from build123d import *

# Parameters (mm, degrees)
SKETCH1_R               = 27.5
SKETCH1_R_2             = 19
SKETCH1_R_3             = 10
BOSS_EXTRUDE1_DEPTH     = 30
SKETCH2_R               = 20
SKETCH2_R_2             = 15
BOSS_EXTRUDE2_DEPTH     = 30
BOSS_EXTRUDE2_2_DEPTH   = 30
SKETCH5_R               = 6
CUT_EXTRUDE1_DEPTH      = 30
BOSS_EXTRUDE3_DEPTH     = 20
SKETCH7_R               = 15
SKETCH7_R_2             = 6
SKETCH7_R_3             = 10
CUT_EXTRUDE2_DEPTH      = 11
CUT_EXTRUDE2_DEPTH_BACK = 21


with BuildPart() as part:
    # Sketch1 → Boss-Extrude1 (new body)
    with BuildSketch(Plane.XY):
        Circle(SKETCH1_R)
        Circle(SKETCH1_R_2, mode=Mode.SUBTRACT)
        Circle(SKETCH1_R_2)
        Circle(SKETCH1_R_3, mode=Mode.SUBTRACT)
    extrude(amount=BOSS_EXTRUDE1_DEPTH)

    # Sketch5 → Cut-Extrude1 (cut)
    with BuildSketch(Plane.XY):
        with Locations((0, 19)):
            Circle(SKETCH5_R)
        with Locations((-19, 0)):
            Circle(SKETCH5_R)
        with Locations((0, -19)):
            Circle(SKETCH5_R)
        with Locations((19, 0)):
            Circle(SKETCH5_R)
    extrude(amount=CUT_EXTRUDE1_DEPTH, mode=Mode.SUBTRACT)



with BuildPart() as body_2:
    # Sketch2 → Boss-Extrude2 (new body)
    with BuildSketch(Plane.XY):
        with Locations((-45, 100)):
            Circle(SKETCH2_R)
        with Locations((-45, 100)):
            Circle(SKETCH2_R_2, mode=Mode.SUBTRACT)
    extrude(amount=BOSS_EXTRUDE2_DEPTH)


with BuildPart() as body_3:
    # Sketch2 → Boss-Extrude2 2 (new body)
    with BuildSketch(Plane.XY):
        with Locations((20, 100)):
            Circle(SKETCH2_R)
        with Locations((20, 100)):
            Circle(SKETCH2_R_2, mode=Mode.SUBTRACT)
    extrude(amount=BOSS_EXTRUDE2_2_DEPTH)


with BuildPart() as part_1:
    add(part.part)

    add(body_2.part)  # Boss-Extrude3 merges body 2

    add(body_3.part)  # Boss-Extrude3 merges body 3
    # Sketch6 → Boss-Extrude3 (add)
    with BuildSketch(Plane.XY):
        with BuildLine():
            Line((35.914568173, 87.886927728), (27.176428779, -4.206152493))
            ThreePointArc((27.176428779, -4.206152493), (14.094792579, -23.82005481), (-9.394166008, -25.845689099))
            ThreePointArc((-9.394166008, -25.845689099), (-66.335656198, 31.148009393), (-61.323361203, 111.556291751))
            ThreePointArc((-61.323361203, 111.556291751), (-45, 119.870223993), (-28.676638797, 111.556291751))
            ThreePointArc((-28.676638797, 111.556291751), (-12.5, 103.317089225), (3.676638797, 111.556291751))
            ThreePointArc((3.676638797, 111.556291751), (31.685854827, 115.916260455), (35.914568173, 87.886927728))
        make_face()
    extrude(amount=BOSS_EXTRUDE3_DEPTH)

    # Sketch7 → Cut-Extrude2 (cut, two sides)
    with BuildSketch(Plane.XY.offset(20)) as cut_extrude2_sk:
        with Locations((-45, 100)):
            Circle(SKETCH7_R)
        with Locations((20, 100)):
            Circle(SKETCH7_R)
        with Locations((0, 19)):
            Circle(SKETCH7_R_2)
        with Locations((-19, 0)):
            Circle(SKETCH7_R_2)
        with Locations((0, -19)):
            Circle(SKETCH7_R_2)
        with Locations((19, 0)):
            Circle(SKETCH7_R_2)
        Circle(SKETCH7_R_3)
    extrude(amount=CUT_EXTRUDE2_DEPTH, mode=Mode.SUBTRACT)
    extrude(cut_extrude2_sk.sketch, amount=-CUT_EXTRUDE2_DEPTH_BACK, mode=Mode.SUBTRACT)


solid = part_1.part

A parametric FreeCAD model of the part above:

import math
import FreeCAD as App
import Part
import Sketcher

doc = App.newDocument("Part")
params = doc.addObject("Spreadsheet::Sheet", "Params")
for row, (alias, value) in enumerate([
    ("sketch1_diameter", "55 mm"),
    ("sketch1_diameter2", "20 mm"),
    ("pad1_length", "30 mm"),
    ("sketch2_diameter", "12 mm"),
    ("pocket1_length", "30 mm"),
    ("sketch3_diameter", "40 mm"),
    ("sketch3_diameter2", "30 mm"),
    ("pad2_length", "30 mm"),
    ("sketch4_diameter", "40 mm"),
    ("sketch4_diameter2", "30 mm"),
    ("pad3_length", "30 mm"),
    ("sketch5_radius", "20 mm"),
    ("sketch5_radius2", "98 mm"),
    ("pad4_length", "20 mm"),
    ("sketch6_diameter", "30 mm"),
    ("sketch6_diameter2", "12 mm"),
    ("sketch6_diameter3", "20 mm"),
], start=1):
    params.set(f"A{row}", alias)
    params.set(f"B{row}", "=" + value)
    params.setAlias(f"B{row}", alias)

body = doc.addObject("PartDesign::Body", "Body")

# Sketch on XY plane
sketch1 = body.newObject("Sketcher::SketchObject", "Sketch")
sketch1.AttachmentSupport = (doc.getObject("XY_Plane"), [""])
sketch1.MapMode = "FlatFace"
sketch1.addGeometry(Part.Circle(App.Vector(0, 0, 0), App.Vector(0, 0, 1), 28), False)
sketch1.addGeometry(Part.Circle(App.Vector(0, 0, 0), App.Vector(0, 0, 1), 10), False)
sketch1.addConstraint(Sketcher.Constraint("Coincident", 0, 3, -1, 1))
sketch1.addConstraint(Sketcher.Constraint("Coincident", 1, 3, -1, 1))
sketch1.addConstraint(Sketcher.Constraint("Diameter", 0, 55.0))
sketch1.addConstraint(Sketcher.Constraint("Diameter", 1, 20.0))
sketch1.setExpression("Constraints[2]", "Params.sketch1_diameter")
sketch1.setExpression("Constraints[3]", "Params.sketch1_diameter2")
pad1 = body.newObject("PartDesign::Pad", "Pad")
pad1.Profile = sketch1
pad1.setExpression("Length", "Params.pad1_length")

# Sketch on XY plane
sketch2 = body.newObject("Sketcher::SketchObject", "Sketch001")
sketch2.AttachmentSupport = (doc.getObject("XY_Plane"), [""])
sketch2.MapMode = "FlatFace"
sketch2.addGeometry(Part.Circle(App.Vector(0, 19, 0), App.Vector(0, 0, 1), 6), False)
sketch2.addGeometry(Part.Circle(App.Vector(-19, 0, 0), App.Vector(0, 0, 1), 6), False)
sketch2.addGeometry(Part.Circle(App.Vector(0, -19, 0), App.Vector(0, 0, 1), 6), False)
sketch2.addGeometry(Part.Circle(App.Vector(19, 0, 0), App.Vector(0, 0, 1), 6), False)
sketch2.addConstraint(Sketcher.Constraint("Equal", 0, 1))
sketch2.addConstraint(Sketcher.Constraint("Equal", 1, 2))
sketch2.addConstraint(Sketcher.Constraint("Equal", 2, 3))
sketch2.addConstraint(Sketcher.Constraint("Symmetric", 0, 3, 2, 3, -1, 1))
sketch2.addConstraint(Sketcher.Constraint("Symmetric", 1, 3, 3, 3, -1, 1))
sketch2.addConstraint(Sketcher.Constraint("PointOnObject", 0, 3, -2))
sketch2.addConstraint(Sketcher.Constraint("PointOnObject", 1, 3, -1))
sketch2.addConstraint(Sketcher.Constraint("Diameter", 0, 12.0))
sketch2.addConstraint(Sketcher.Constraint("DistanceY", -1, 1, 0, 3, 19.0))
sketch2.addConstraint(Sketcher.Constraint("DistanceX", 1, 3, -1, 1, 19.0))
sketch2.setExpression("Constraints[7]", "Params.sketch2_diameter")
pocket1 = body.newObject("PartDesign::Pocket", "Pocket")
pocket1.Profile = sketch2
pocket1.setExpression("Length", "Params.pocket1_length")
pocket1.Reversed = True
body2 = doc.addObject("PartDesign::Body", "Body001")

# Sketch on XY plane
sketch3 = body2.newObject("Sketcher::SketchObject", "Sketch002")
sketch3.AttachmentSupport = (doc.getObject("XY_Plane001"), [""])
sketch3.MapMode = "FlatFace"
sketch3.addGeometry(Part.Circle(App.Vector(-45, 100, 0), App.Vector(0, 0, 1), 20), False)
sketch3.addGeometry(Part.Circle(App.Vector(-45, 100, 0), App.Vector(0, 0, 1), 15), False)
sketch3.addConstraint(Sketcher.Constraint("Coincident", 1, 3, 0, 3))
sketch3.addConstraint(Sketcher.Constraint("Diameter", 0, 40.0))
sketch3.addConstraint(Sketcher.Constraint("Diameter", 1, 30.0))
sketch3.addConstraint(Sketcher.Constraint("DistanceX", 0, 3, -1, 1, 45.0))
sketch3.addConstraint(Sketcher.Constraint("DistanceY", -1, 1, 0, 3, 100.0))
sketch3.setExpression("Constraints[1]", "Params.sketch3_diameter")
sketch3.setExpression("Constraints[2]", "Params.sketch3_diameter2")
pad2 = body2.newObject("PartDesign::Pad", "Pad001")
pad2.Profile = sketch3
pad2.setExpression("Length", "Params.pad2_length")
body3 = doc.addObject("PartDesign::Body", "Body002")

# Sketch on XY plane
sketch4 = body3.newObject("Sketcher::SketchObject", "Sketch003")
sketch4.AttachmentSupport = (doc.getObject("XY_Plane002"), [""])
sketch4.MapMode = "FlatFace"
sketch4.addGeometry(Part.Circle(App.Vector(20, 100, 0), App.Vector(0, 0, 1), 20), False)
sketch4.addGeometry(Part.Circle(App.Vector(20, 100, 0), App.Vector(0, 0, 1), 15), False)
sketch4.addConstraint(Sketcher.Constraint("Coincident", 1, 3, 0, 3))
sketch4.addConstraint(Sketcher.Constraint("Diameter", 0, 40.0))
sketch4.addConstraint(Sketcher.Constraint("Diameter", 1, 30.0))
sketch4.addConstraint(Sketcher.Constraint("DistanceX", -1, 1, 0, 3, 20.0))
sketch4.addConstraint(Sketcher.Constraint("DistanceY", -1, 1, 0, 3, 100.0))
sketch4.setExpression("Constraints[1]", "Params.sketch4_diameter")
sketch4.setExpression("Constraints[2]", "Params.sketch4_diameter2")
pad3 = body3.newObject("PartDesign::Pad", "Pad002")
pad3.Profile = sketch4
pad3.setExpression("Length", "Params.pad3_length")
body.AllowCompound = True
doc.recompute()

boolean = body.newObject("PartDesign::Boolean", "Boolean")
boolean.Type = "Fuse"
boolean.addObjects([body2])
doc.recompute()

boolean2 = body.newObject("PartDesign::Boolean", "Boolean001")
boolean2.Type = "Fuse"
boolean2.addObjects([body3])

# Sketch on XY plane
sketch5 = body.newObject("Sketcher::SketchObject", "Sketch004")
sketch5.AttachmentSupport = (doc.getObject("XY_Plane"), [""])
sketch5.MapMode = "FlatFace"
sketch5.addGeometry(Part.LineSegment(App.Vector(27, -4, 0), App.Vector(36, 88, 0)), False)
sketch5.addGeometry(Part.ArcOfCircle(Part.Circle(App.Vector(20, 100, 0), App.Vector(0, 0, 1), 20), math.radians(-37), math.radians(144)), False)
sketch5.addGeometry(Part.ArcOfCircle(Part.Circle(App.Vector(-12, 123, 0), App.Vector(0, 0, 1), 20), math.radians(-144), math.radians(-36)), False)
sketch5.addGeometry(Part.ArcOfCircle(Part.Circle(App.Vector(-45, 100, 0), App.Vector(0, 0, 1), 20), math.radians(36), math.radians(144)), False)
sketch5.addGeometry(Part.ArcOfCircle(Part.Circle(App.Vector(25, 66, 0), App.Vector(0, 0, 1), 98), math.radians(152), math.radians(249)), False)
sketch5.addGeometry(Part.ArcOfCircle(Part.Circle(App.Vector(0, 0, 0), App.Vector(0, 0, 1), 27), math.radians(-111), math.radians(-8)), False)
sketch5.addConstraint(Sketcher.Constraint("Coincident", 0, 2, 1, 1))
sketch5.addConstraint(Sketcher.Constraint("Tangent", 1, 2, 2, 2))
sketch5.addConstraint(Sketcher.Constraint("Tangent", 2, 1, 3, 1))
sketch5.addConstraint(Sketcher.Constraint("Coincident", 3, 2, 4, 1))
sketch5.addConstraint(Sketcher.Constraint("Tangent", 4, 2, 5, 1))
sketch5.addConstraint(Sketcher.Constraint("Coincident", 5, 2, 0, 1))
sketch5.addConstraint(Sketcher.Constraint("Horizontal", 1, 2, 2, 1))
sketch5.addConstraint(Sketcher.Constraint("Horizontal", 2, 1, 3, 2))
sketch5.addConstraint(Sketcher.Constraint("Radius", 2, 20.0))
sketch5.addConstraint(Sketcher.Constraint("Radius", 4, 98.0))
sketch5.addConstraint(Sketcher.Constraint("DistanceX", 3, 3, -1, 1, 45.0))
sketch5.addConstraint(Sketcher.Constraint("DistanceX", 3, 2, 1, 2, 65.0))
sketch5.addConstraint(Sketcher.Constraint("Radius", 3, 20.1814))
sketch5.addConstraint(Sketcher.Constraint("Radius", 1, 19.997237))
sketch5.addConstraint(Sketcher.Constraint("Radius", 5, 27.197827))
sketch5.addConstraint(Sketcher.Constraint("DistanceX", 5, 3, 4, 3, 25.091402))
sketch5.addConstraint(Sketcher.Constraint("DistanceY", -1, 1, 1, 3, 99.797119))
sketch5.addConstraint(Sketcher.Constraint("DistanceY", -1, 1, 4, 3, 65.793981))
sketch5.addConstraint(Sketcher.Constraint("DistanceX", -1, 1, 0, 2, 35.914568))
sketch5.addConstraint(Sketcher.Constraint("DistanceX", -1, 1, 5, 2, 27.176429))
sketch5.setExpression("Constraints[8]", "Params.sketch5_radius")
sketch5.setExpression("Constraints[9]", "Params.sketch5_radius2")
pad4 = body.newObject("PartDesign::Pad", "Pad003")
pad4.Profile = sketch5
pad4.setExpression("Length", "Params.pad4_length")

# Sketch on XY plane
sketch6 = body.newObject("Sketcher::SketchObject", "Sketch005")
sketch6.AttachmentSupport = (doc.getObject("XY_Plane"), [""])
sketch6.MapMode = "FlatFace"
sketch6.AttachmentOffset = App.Placement(App.Vector(0, 0, 20), App.Rotation())
sketch6.addGeometry(Part.Circle(App.Vector(-45, 100, 0), App.Vector(0, 0, 1), 15), False)
sketch6.addGeometry(Part.Circle(App.Vector(20, 100, 0), App.Vector(0, 0, 1), 15), False)
sketch6.addGeometry(Part.Circle(App.Vector(0, 19, 0), App.Vector(0, 0, 1), 6), False)
sketch6.addGeometry(Part.Circle(App.Vector(-19, 0, 0), App.Vector(0, 0, 1), 6), False)
sketch6.addGeometry(Part.Circle(App.Vector(0, -19, 0), App.Vector(0, 0, 1), 6), False)
sketch6.addGeometry(Part.Circle(App.Vector(19, 0, 0), App.Vector(0, 0, 1), 6), False)
sketch6.addGeometry(Part.Circle(App.Vector(0, 0, 0), App.Vector(0, 0, 1), 10), False)
sketch6.addConstraint(Sketcher.Constraint("Coincident", 6, 3, -1, 1))
sketch6.addConstraint(Sketcher.Constraint("Equal", 0, 1))
sketch6.addConstraint(Sketcher.Constraint("Equal", 2, 3))
sketch6.addConstraint(Sketcher.Constraint("Equal", 3, 4))
sketch6.addConstraint(Sketcher.Constraint("Equal", 4, 5))
sketch6.addConstraint(Sketcher.Constraint("Symmetric", 2, 3, 4, 3, -1, 1))
sketch6.addConstraint(Sketcher.Constraint("Symmetric", 3, 3, 5, 3, -1, 1))
sketch6.addConstraint(Sketcher.Constraint("PointOnObject", 2, 3, -2))
sketch6.addConstraint(Sketcher.Constraint("PointOnObject", 3, 3, -1))
sketch6.addConstraint(Sketcher.Constraint("Horizontal", 0, 3, 1, 3))
sketch6.addConstraint(Sketcher.Constraint("Diameter", 0, 30.0))
sketch6.addConstraint(Sketcher.Constraint("Diameter", 2, 12.0))
sketch6.addConstraint(Sketcher.Constraint("Diameter", 6, 20.0))
sketch6.addConstraint(Sketcher.Constraint("DistanceX", 0, 3, -1, 1, 45.0))
sketch6.addConstraint(Sketcher.Constraint("DistanceY", -1, 1, 0, 3, 100.0))
sketch6.addConstraint(Sketcher.Constraint("DistanceX", -1, 1, 1, 3, 20.0))
sketch6.addConstraint(Sketcher.Constraint("DistanceY", -1, 1, 2, 3, 19.0))
sketch6.addConstraint(Sketcher.Constraint("DistanceX", 3, 3, -1, 1, 19.0))
sketch6.setExpression("Constraints[10]", "Params.sketch6_diameter")
sketch6.setExpression("Constraints[11]", "Params.sketch6_diameter2")
sketch6.setExpression("Constraints[12]", "Params.sketch6_diameter3")
pocket2 = body.newObject("PartDesign::Pocket", "Pocket001")
pocket2.Profile = sketch6
pocket2.Type = "ThroughAll"
pocket2.Midplane = True

doc.recompute()
